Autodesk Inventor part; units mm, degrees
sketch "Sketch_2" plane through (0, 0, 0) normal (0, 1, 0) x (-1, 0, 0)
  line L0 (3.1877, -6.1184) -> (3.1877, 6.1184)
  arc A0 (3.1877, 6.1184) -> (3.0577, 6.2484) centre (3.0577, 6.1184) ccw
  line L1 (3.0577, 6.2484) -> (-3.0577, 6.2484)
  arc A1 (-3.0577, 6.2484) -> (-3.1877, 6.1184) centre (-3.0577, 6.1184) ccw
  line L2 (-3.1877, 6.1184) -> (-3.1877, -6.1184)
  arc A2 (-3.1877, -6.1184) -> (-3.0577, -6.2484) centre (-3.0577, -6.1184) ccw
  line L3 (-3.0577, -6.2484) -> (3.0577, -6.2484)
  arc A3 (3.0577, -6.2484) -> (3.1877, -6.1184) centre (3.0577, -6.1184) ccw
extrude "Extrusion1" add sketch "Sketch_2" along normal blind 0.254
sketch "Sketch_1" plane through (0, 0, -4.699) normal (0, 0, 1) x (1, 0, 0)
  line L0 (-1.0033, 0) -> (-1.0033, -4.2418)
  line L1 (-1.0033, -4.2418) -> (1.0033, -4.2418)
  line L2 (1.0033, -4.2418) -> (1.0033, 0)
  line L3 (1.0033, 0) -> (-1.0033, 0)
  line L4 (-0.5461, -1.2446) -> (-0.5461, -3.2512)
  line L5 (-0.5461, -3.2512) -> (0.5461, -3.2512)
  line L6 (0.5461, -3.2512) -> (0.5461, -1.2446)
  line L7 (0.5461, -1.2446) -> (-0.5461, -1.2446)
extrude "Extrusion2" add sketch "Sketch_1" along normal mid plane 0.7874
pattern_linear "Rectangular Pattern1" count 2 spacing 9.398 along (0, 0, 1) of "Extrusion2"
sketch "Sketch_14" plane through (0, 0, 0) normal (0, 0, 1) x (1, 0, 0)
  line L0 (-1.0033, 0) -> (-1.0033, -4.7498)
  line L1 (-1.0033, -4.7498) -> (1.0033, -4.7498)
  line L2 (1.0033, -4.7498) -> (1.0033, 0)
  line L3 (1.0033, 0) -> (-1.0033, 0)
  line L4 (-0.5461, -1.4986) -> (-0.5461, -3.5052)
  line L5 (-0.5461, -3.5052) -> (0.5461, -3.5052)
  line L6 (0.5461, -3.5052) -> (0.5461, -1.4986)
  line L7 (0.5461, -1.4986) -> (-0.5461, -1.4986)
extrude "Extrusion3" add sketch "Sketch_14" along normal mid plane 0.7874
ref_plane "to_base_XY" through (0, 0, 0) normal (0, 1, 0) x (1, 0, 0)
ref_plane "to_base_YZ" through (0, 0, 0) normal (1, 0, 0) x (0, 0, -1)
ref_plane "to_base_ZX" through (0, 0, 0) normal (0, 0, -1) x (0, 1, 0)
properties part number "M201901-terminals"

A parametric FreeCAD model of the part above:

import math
import FreeCAD as App
import Part
import Sketcher

V = App.Vector
Q = App.Units.Quantity


def add_polygon(sketch, points):
    """Adds a closed chain of lines whose ends are joined by coincident constraints."""
    first, n = sketch.GeometryCount, len(points)
    for a, b in zip(points, points[1:] + points[:1]):
        sketch.addGeometry(Part.LineSegment(App.Vector(*a, 0), App.Vector(*b, 0)), False)
    for i in range(n):
        sketch.addConstraint(Sketcher.Constraint("Coincident", first + i, 2, first + (i + 1) % n, 1))

doc = App.newDocument("Part")
params = doc.addObject("Spreadsheet::Sheet", "Params")
for row, (alias, value) in enumerate([
    ("pad1_length", "0.01 in"),
    ("sketch2_width", "0.079 in"),
    ("sketch2_width2", "0.043 in"),
    ("sketch2_height", "0.167 in"),
    ("pad2_length", "0.031 in"),
    ("linearpattern_pitch", "0.37 in"),
    ("sketch3_width", "0.079 in"),
    ("sketch3_width2", "0.043 in"),
    ("sketch3_height", "0.187 in"),
    ("pad3_length", "0.031 in"),
], start=1):
    params.set(f"A{row}", alias)
    params.set(f"B{row}", "=" + value)
    params.setAlias(f"B{row}", alias)

body = doc.addObject("PartDesign::Body", "Body")

# Sketch on XZ plane
sketch1 = body.newObject("Sketcher::SketchObject", "Sketch")
sketch1.AttachmentSupport = (doc.getObject("XZ_Plane"), [""])
sketch1.MapMode = "FlatFace"
sketch1.addGeometry([
    Part.ArcOfCircle(Part.Circle(V(-3.06, -6.12, 0), V(0, 0, 1), 0.13), math.radians(180), math.radians(270)),  # 0
    Part.LineSegment(V(-3.19, -6.12, 0), V(-3.19, 6.12, 0)),  # 1
    Part.ArcOfCircle(Part.Circle(V(-3.06, 6.12, 0), V(0, 0, 1), 0.13), math.radians(90), math.radians(180)),  # 2
    Part.LineSegment(V(-3.06, 6.25, 0), V(3.06, 6.25, 0)),  # 3
    Part.ArcOfCircle(Part.Circle(V(3.06, 6.12, 0), V(0, 0, 1), 0.13), math.radians(0), math.radians(90)),  # 4
    Part.LineSegment(V(3.19, 6.12, 0), V(3.19, -6.12, 0)),  # 5
    Part.ArcOfCircle(Part.Circle(V(3.06, -6.12, 0), V(0, 0, 1), 0.13), math.radians(-90), math.radians(0)),  # 6
    Part.LineSegment(V(3.06, -6.25, 0), V(-3.06, -6.25, 0)),  # 7
], False)
sketch1.addConstraint([
    Sketcher.Constraint("Tangent", 0, 1, 1, 1),
    Sketcher.Constraint("Tangent", 1, 2, 2, 2),
    Sketcher.Constraint("Tangent", 2, 1, 3, 1),
    Sketcher.Constraint("Tangent", 3, 2, 4, 2),
    Sketcher.Constraint("Tangent", 4, 1, 5, 1),
    Sketcher.Constraint("Tangent", 5, 2, 6, 2),
    Sketcher.Constraint("Tangent", 6, 1, 7, 1),
    Sketcher.Constraint("Tangent", 7, 2, 0, 2),
    Sketcher.Constraint("Vertical", 1),
    Sketcher.Constraint("Horizontal", 3),
    Sketcher.Constraint("Vertical", 5),
    Sketcher.Constraint("Horizontal", 7),
    Sketcher.Constraint("Equal", 0, 2),
    Sketcher.Constraint("Equal", 2, 4),
    Sketcher.Constraint("Equal", 4, 6),
    Sketcher.Constraint("Symmetric", 0, 3, 4, 3, -1, 1),
    Sketcher.Constraint("Radius", 0, Q("0.13 mm")),
    Sketcher.Constraint("DistanceY", -1, 1, 2, 1, Q("0.246 in")),
    Sketcher.Constraint("DistanceX", 1, 2, 4, 1, Q("0.251 in")),
])
pad1 = body.newObject("PartDesign::Pad", "Pad")
pad1.Profile = sketch1
pad1.setExpression("Length", "Params.pad1_length")
pad1.Reversed = True

# Sketch on XY plane
sketch2 = body.newObject("Sketcher::SketchObject", "Sketch001")
sketch2.AttachmentSupport = (doc.getObject("XY_Plane"), [""])
sketch2.MapMode = "FlatFace"
sketch2.AttachmentOffset = App.Placement(V(0, 0, -0.185 * 25.4), App.Rotation())
add_polygon(sketch2, [(1, 0), (-1, 0), (-1, -4.2), (1, -4.2)])  # lines 0-3
add_polygon(sketch2, [(-0.5, -3.3), (-0.5, -1.2), (0.5, -1.2), (0.5, -3.3)])  # lines 4-7
sketch2.addConstraint([
    Sketcher.Constraint("Horizontal", 0),
    Sketcher.Constraint("Vertical", 1),
    Sketcher.Constraint("Horizontal", 2),
    Sketcher.Constraint("Vertical", 3),
    Sketcher.Constraint("Vertical", 4),
    Sketcher.Constraint("Horizontal", 5),
    Sketcher.Constraint("Vertical", 6),
    Sketcher.Constraint("Horizontal", 7),
    Sketcher.Constraint("Symmetric", 0, 2, 3, 2, -1, 1),
    Sketcher.Constraint("Equal", 2, 4),
    Sketcher.Constraint("DistanceX", 0, 2, 0, 1, Q("0.079 in")),
    Sketcher.Constraint("DistanceX", 5, 1, 5, 2, Q("0.043 in")),
    Sketcher.Constraint("DistanceY", 1, 2, 1, 1, Q("0.167 in")),
    Sketcher.Constraint("DistanceY", 4, 2, -1, 1, Q("0.049 in")),
    Sketcher.Constraint("DistanceX", 0, 2, 4, 2, Q("0.018 in")),
])
sketch2.setExpression("Constraints[18]", "Params.sketch2_width")
sketch2.setExpression("Constraints[19]", "Params.sketch2_width2")
sketch2.setExpression("Constraints[20]", "Params.sketch2_height")
pad2 = body.newObject("PartDesign::Pad", "Pad001")
pad2.Profile = sketch2
pad2.setExpression("Length", "Params.pad2_length")
pad2.Midplane = True
doc.recompute()

linearpattern = body.newObject("PartDesign::LinearPattern", "LinearPattern")
linearpattern.Originals = [pad2]
linearpattern.Direction = (doc.getObject("Z_Axis"), [""])
linearpattern.Mode = "offset"
linearpattern.setExpression("Offset", "Params.linearpattern_pitch")
linearpattern.Occurrences = 2
body.Tip = linearpattern

# Sketch on XY plane
sketch3 = body.newObject("Sketcher::SketchObject", "Sketch002")
sketch3.AttachmentSupport = (doc.getObject("XY_Plane"), [""])
sketch3.MapMode = "FlatFace"
add_polygon(sketch3, [(1, 0), (-1, 0), (-1, -4.7), (1, -4.7)])  # lines 0-3
add_polygon(sketch3, [(-0.5, -3.5), (-0.5, -1.5), (0.5, -1.5), (0.5, -3.5)])  # lines 4-7
sketch3.addConstraint([
    Sketcher.Constraint("Horizontal", 0),
    Sketcher.Constraint("Vertical", 1),
    Sketcher.Constraint("Horizontal", 2),
    Sketcher.Constraint("Vertical", 3),
    Sketcher.Constraint("Vertical", 4),
    Sketcher.Constraint("Horizontal", 5),
    Sketcher.Constraint("Vertical", 6),
    Sketcher.Constraint("Horizontal", 7),
    Sketcher.Constraint("Symmetric", 0, 2, 3, 2, -1, 1),
    Sketcher.Constraint("Equal", 2, 4),
    Sketcher.Constraint("DistanceX", 0, 2, 0, 1, Q("0.079 in")),
    Sketcher.Constraint("DistanceX", 5, 1, 5, 2, Q("0.043 in")),
    Sketcher.Constraint("DistanceY", 1, 2, 1, 1, Q("0.187 in")),
    Sketcher.Constraint("DistanceY", 4, 2, -1, 1, Q("0.059 in")),
    Sketcher.Constraint("DistanceX", 0, 2, 4, 2, Q("0.018 in")),
])
sketch3.setExpression("Constraints[18]", "Params.sketch3_width")
sketch3.setExpression("Constraints[19]", "Params.sketch3_width2")
sketch3.setExpression("Constraints[20]", "Params.sketch3_height")
pad3 = body.newObject("PartDesign::Pad", "Pad002")
pad3.Profile = sketch3
pad3.setExpression("Length", "Params.pad3_length")
pad3.Midplane = True

doc.recompute()
